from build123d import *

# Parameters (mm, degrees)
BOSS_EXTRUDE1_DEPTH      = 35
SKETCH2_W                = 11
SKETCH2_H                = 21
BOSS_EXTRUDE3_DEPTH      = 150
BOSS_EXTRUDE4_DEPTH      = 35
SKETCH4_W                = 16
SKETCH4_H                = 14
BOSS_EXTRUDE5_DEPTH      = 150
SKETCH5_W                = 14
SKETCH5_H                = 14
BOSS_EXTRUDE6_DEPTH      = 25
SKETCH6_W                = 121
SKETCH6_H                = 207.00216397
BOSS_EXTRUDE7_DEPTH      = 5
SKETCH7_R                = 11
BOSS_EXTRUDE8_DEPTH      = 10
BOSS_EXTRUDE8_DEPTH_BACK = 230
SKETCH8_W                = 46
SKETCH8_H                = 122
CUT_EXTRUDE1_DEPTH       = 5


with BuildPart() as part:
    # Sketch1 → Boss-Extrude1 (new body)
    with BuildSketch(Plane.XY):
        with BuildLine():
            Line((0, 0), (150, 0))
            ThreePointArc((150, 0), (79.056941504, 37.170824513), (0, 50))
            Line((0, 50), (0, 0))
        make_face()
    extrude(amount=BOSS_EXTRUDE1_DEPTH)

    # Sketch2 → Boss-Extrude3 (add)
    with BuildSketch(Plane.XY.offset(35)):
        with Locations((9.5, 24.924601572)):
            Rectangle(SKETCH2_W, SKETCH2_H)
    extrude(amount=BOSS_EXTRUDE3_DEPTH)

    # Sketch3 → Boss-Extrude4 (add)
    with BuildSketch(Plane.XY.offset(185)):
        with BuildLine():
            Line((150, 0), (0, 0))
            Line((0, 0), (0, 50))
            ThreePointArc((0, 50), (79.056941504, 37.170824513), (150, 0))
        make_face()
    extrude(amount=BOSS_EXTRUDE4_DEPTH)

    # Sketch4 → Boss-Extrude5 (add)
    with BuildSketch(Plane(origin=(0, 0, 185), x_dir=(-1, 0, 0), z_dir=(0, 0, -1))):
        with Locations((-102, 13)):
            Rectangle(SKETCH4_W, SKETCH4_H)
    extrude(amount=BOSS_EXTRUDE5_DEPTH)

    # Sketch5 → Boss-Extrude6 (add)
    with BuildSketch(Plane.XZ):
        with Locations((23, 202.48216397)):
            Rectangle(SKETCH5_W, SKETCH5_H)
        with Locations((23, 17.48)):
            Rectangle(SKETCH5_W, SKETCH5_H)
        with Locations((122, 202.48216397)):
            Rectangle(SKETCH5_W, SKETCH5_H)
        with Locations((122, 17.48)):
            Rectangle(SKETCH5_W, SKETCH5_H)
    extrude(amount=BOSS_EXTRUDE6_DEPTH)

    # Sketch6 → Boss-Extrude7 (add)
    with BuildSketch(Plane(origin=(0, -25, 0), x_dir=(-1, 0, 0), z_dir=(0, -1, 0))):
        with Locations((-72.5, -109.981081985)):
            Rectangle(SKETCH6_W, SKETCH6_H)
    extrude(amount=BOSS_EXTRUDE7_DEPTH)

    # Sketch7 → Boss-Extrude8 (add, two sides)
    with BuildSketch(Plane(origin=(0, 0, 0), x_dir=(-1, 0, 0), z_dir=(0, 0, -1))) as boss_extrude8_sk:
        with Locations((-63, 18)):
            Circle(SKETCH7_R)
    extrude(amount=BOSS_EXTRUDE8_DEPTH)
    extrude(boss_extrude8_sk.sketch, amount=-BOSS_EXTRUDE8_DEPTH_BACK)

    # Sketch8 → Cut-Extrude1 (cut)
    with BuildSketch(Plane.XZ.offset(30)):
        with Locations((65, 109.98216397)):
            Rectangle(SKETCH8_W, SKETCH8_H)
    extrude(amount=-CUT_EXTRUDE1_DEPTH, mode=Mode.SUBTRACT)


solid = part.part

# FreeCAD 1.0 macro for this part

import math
import FreeCAD as App
import Part
import Sketcher
from FreeCAD import Vector
Q = App.Units.Quantity

doc = App.newDocument("Part")
body = doc.addObject("PartDesign::Body", "Body")

# Sketch on XY plane
sketch1 = body.newObject("Sketcher::SketchObject", "Sketch")
sketch1.AttachmentSupport = (doc.getObject("XY_Plane"), [""])
sketch1.MapMode = "FlatFace"
sketch1.addGeometry([
    Part.LineSegment(Vector(0, 0, 0), Vector(150, 0, 0)),
    Part.ArcOfCircle(Part.Circle(Vector(0, -200, 0), Vector(0, 0, 1), 250), math.radians(53), math.radians(90)),
    Part.LineSegment(Vector(0, 50, 0), Vector(0, 0, 0)),
], False)
sketch1.addConstraint([
    Sketcher.Constraint("Coincident", 0, 2, 1, 1),
    Sketcher.Constraint("Coincident", 1, 2, 2, 1),
    Sketcher.Constraint("Coincident", 2, 2, 0, 1),
    Sketcher.Constraint("Horizontal", 0),
    Sketcher.Constraint("Vertical", 2),
    Sketcher.Constraint("Coincident", 2, 2, -1, 1),
    Sketcher.Constraint("PointOnObject", 1, 3, -2),
    Sketcher.Constraint("Radius", 1, Q("250 mm")),
    Sketcher.Constraint("DistanceX", 0, 1, 0, 2, Q("150 mm")),
])
pad1 = body.newObject("PartDesign::Pad", "Pad")
pad1.Profile = sketch1
pad1.Length = 35

# Sketch on XY plane
sketch2 = body.newObject("Sketcher::SketchObject", "Sketch001")
sketch2.AttachmentSupport = (doc.getObject("XY_Plane"), [""])
sketch2.MapMode = "FlatFace"
sketch2.AttachmentOffset = App.Placement(Vector(0, 0, 35), App.Rotation())
sketch2.addGeometry([
    Part.LineSegment(Vector(4, 35, 0), Vector(4, 14, 0)),
    Part.LineSegment(Vector(4, 14, 0), Vector(15, 14, 0)),
    Part.LineSegment(Vector(15, 14, 0), Vector(15, 35, 0)),
    Part.LineSegment(Vector(15, 35, 0), Vector(4, 35, 0)),
], False)
sketch2.addConstraint([
    Sketcher.Constraint("Coincident", 0, 2, 1, 1),
    Sketcher.Constraint("Coincident", 1, 2, 2, 1),
    Sketcher.Constraint("Coincident", 2, 2, 3, 1),
    Sketcher.Constraint("Coincident", 3, 2, 0, 1),
    Sketcher.Constraint("Vertical", 0),
    Sketcher.Constraint("Horizontal", 1),
    Sketcher.Constraint("Vertical", 2),
    Sketcher.Constraint("Horizontal", 3),
    Sketcher.Constraint("DistanceX", 1, 1, 1, 2, Q("11 mm")),
    Sketcher.Constraint("DistanceY", 0, 2, 0, 1, Q("21 mm")),
    Sketcher.Constraint("DistanceX", -1, 1, 0, 2, Q("4 mm")),
    Sketcher.Constraint("DistanceY", -1, 1, 0, 2, Q("14.424602 mm")),
])
pad2 = body.newObject("PartDesign::Pad", "Pad001")
pad2.Profile = sketch2
pad2.Length = 150

# Sketch on XY plane
sketch3 = body.newObject("Sketcher::SketchObject", "Sketch002")
sketch3.AttachmentSupport = (doc.getObject("XY_Plane"), [""])
sketch3.MapMode = "FlatFace"
sketch3.AttachmentOffset = App.Placement(Vector(0, 0, 185), App.Rotation())
sketch3.addGeometry([
    Part.LineSegment(Vector(0, 0, 0), Vector(150, 0, 0)),
    Part.ArcOfCircle(Part.Circle(Vector(0, -200, 0), Vector(0, 0, 1), 250), math.radians(53), math.radians(90)),
    Part.LineSegment(Vector(0, 50, 0), Vector(0, 0, 0)),
], False)
sketch3.addConstraint([
    Sketcher.Constraint("Coincident", 0, 2, 1, 1),
    Sketcher.Constraint("Coincident", 1, 2, 2, 1),
    Sketcher.Constraint("Coincident", 2, 2, 0, 1),
    Sketcher.Constraint("Horizontal", 0),
    Sketcher.Constraint("Vertical", 2),
    Sketcher.Constraint("Coincident", 2, 2, -1, 1),
    Sketcher.Constraint("PointOnObject", 1, 3, -2),
    Sketcher.Constraint("Radius", 1, Q("250 mm")),
    Sketcher.Constraint("DistanceX", 0, 1, 0, 2, Q("150 mm")),
])
pad3 = body.newObject("PartDesign::Pad", "Pad002")
pad3.Profile = sketch3
pad3.Length = 35

# Sketch on XY plane
sketch4 = body.newObject("Sketcher::SketchObject", "Sketch003")
sketch4.AttachmentSupport = (doc.getObject("XY_Plane"), [""])
sketch4.MapMode = "FlatFace"
sketch4.AttachmentOffset = App.Placement(Vector(0, 0, 185), App.Rotation())
sketch4.addGeometry([
    Part.LineSegment(Vector(110, 20, 0), Vector(110, 6, 0)),
    Part.LineSegment(Vector(110, 6, 0), Vector(94, 6, 0)),
    Part.LineSegment(Vector(94, 6, 0), Vector(94, 20, 0)),
    Part.LineSegment(Vector(94, 20, 0), Vector(110, 20, 0)),
], False)
sketch4.addConstraint([
    Sketcher.Constraint("Coincident", 0, 2, 1, 1),
    Sketcher.Constraint("Coincident", 1, 2, 2, 1),
    Sketcher.Constraint("Coincident", 2, 2, 3, 1),
    Sketcher.Constraint("Coincident", 3, 2, 0, 1),
    Sketcher.Constraint("Vertical", 0),
    Sketcher.Constraint("Horizontal", 1),
    Sketcher.Constraint("Vertical", 2),
    Sketcher.Constraint("Horizontal", 3),
    Sketcher.Constraint("DistanceX", 1, 2, 1, 1, Q("16 mm")),
    Sketcher.Constraint("DistanceY", 0, 2, 0, 1, Q("14 mm")),
    Sketcher.Constraint("DistanceX", -1, 1, 0, 2, Q("110 mm")),
    Sketcher.Constraint("DistanceY", -1, 1, 0, 2, Q("6 mm")),
])
pad4 = body.newObject("PartDesign::Pad", "Pad003")
pad4.Profile = sketch4
pad4.Length = 150
pad4.Reversed = True

# Sketch on XZ plane
sketch5 = body.newObject("Sketcher::SketchObject", "Sketch004")
sketch5.AttachmentSupport = (doc.getObject("XZ_Plane"), [""])
sketch5.MapMode = "FlatFace"
sketch5.addGeometry([
    Part.LineSegment(Vector(16, 209, 0), Vector(16, 195, 0)),  # 0
    Part.LineSegment(Vector(16, 195, 0), Vector(30, 195, 0)),  # 1
    Part.LineSegment(Vector(30, 195, 0), Vector(30, 209, 0)),  # 2
    Part.LineSegment(Vector(30, 209, 0), Vector(16, 209, 0)),  # 3
    Part.LineSegment(Vector(16, 24, 0), Vector(16, 10, 0)),  # 4
    Part.LineSegment(Vector(16, 10, 0), Vector(30, 10, 0)),  # 5
    Part.LineSegment(Vector(30, 10, 0), Vector(30, 24, 0)),  # 6
    Part.LineSegment(Vector(30, 24, 0), Vector(16, 24, 0)),  # 7
    Part.LineSegment(Vector(115, 209, 0), Vector(115, 195, 0)),  # 8
    Part.LineSegment(Vector(115, 195, 0), Vector(129, 195, 0)),  # 9
    Part.LineSegment(Vector(129, 195, 0), Vector(129, 209, 0)),  # 10
    Part.LineSegment(Vector(129, 209, 0), Vector(115, 209, 0)),  # 11
    Part.LineSegment(Vector(115, 24, 0), Vector(115, 10, 0)),  # 12
    Part.LineSegment(Vector(115, 10, 0), Vector(129, 10, 0)),  # 13
    Part.LineSegment(Vector(129, 10, 0), Vector(129, 24, 0)),  # 14
    Part.LineSegment(Vector(129, 24, 0), Vector(115, 24, 0)),  # 15
], False)
sketch5.addConstraint([
    Sketcher.Constraint("Coincident", 0, 2, 1, 1),
    Sketcher.Constraint("Coincident", 1, 2, 2, 1),
    Sketcher.Constraint("Coincident", 2, 2, 3, 1),
    Sketcher.Constraint("Coincident", 3, 2, 0, 1),
    Sketcher.Constraint("Coincident", 4, 2, 5, 1),
    Sketcher.Constraint("Coincident", 5, 2, 6, 1),
    Sketcher.Constraint("Coincident", 6, 2, 7, 1),
    Sketcher.Constraint("Coincident", 7, 2, 4, 1),
    Sketcher.Constraint("Coincident", 8, 2, 9, 1),
    Sketcher.Constraint("Coincident", 9, 2, 10, 1),
    Sketcher.Constraint("Coincident", 10, 2, 11, 1),
    Sketcher.Constraint("Coincident", 11, 2, 8, 1),
    Sketcher.Constraint("Coincident", 12, 2, 13, 1),
    Sketcher.Constraint("Coincident", 13, 2, 14, 1),
    Sketcher.Constraint("Coincident", 14, 2, 15, 1),
    Sketcher.Constraint("Coincident", 15, 2, 12, 1),
    Sketcher.Constraint("Vertical", 0),
    Sketcher.Constraint("Horizontal", 1),
    Sketcher.Constraint("Vertical", 2),
    Sketcher.Constraint("Horizontal", 3),
    Sketcher.Constraint("Vertical", 4),
    Sketcher.Constraint("Horizontal", 5),
    Sketcher.Constraint("Vertical", 6),
    Sketcher.Constraint("Horizontal", 7),
    Sketcher.Constraint("Vertical", 8),
    Sketcher.Constraint("Horizontal", 9),
    Sketcher.Constraint("Vertical", 10),
    Sketcher.Constraint("Horizontal", 11),
    Sketcher.Constraint("Vertical", 12),
    Sketcher.Constraint("Horizontal", 13),
    Sketcher.Constraint("Vertical", 14),
    Sketcher.Constraint("Horizontal", 15),
    Sketcher.Constraint("Horizontal", 1, 2, 8, 2),
    Sketcher.Constraint("Horizontal", 3, 2, 10, 2),
    Sketcher.Constraint("Horizontal", 5, 2, 12, 2),
    Sketcher.Constraint("Horizontal", 7, 2, 14, 2),
    Sketcher.Constraint("Vertical", 3, 2, 4, 2),
    Sketcher.Constraint("Vertical", 2, 2, 5, 2),
    Sketcher.Constraint("Vertical", 11, 2, 12, 2),
    Sketcher.Constraint("Vertical", 10, 2, 13, 2),
    Sketcher.Constraint("Equal", 7, 9),
    Sketcher.Constraint("Equal", 15, 0),
    Sketcher.Constraint("Equal", 2, 4),
    Sketcher.Constraint("DistanceX", 1, 1, 1, 2, Q("14 mm")),
    Sketcher.Constraint("DistanceX", -1, 1, 0, 2, Q("16 mm")),
    Sketcher.Constraint("DistanceX", -1, 1, 8, 2, Q("115 mm")),
    Sketcher.Constraint("DistanceY", -1, 1, 4, 2, Q("10.48 mm")),
    Sketcher.Constraint("DistanceY", -1, 1, 0, 2, Q("195.482164 mm")),
])
pad5 = body.newObject("PartDesign::Pad", "Pad004")
pad5.Profile = sketch5
pad5.Length = 25

# Sketch on XZ plane
sketch6 = body.newObject("Sketcher::SketchObject", "Sketch005")
sketch6.AttachmentSupport = (doc.getObject("XZ_Plane"), [""])
sketch6.MapMode = "FlatFace"
sketch6.AttachmentOffset = App.Placement(Vector(0, 0, 25), App.Rotation())
sketch6.addGeometry([
    Part.LineSegment(Vector(133, 6, 0), Vector(133, 213, 0)),
    Part.LineSegment(Vector(133, 213, 0), Vector(12, 213, 0)),
    Part.LineSegment(Vector(12, 213, 0), Vector(12, 6, 0)),
    Part.LineSegment(Vector(12, 6, 0), Vector(133, 6, 0)),
], False)
sketch6.addConstraint([
    Sketcher.Constraint("Coincident", 0, 2, 1, 1),
    Sketcher.Constraint("Coincident", 1, 2, 2, 1),
    Sketcher.Constraint("Coincident", 2, 2, 3, 1),
    Sketcher.Constraint("Coincident", 3, 2, 0, 1),
    Sketcher.Constraint("Vertical", 0),
    Sketcher.Constraint("Horizontal", 1),
    Sketcher.Constraint("Vertical", 2),
    Sketcher.Constraint("Horizontal", 3),
    Sketcher.Constraint("DistanceX", 1, 2, 1, 1, Q("121 mm")),
    Sketcher.Constraint("DistanceX", -1, 1, 0, 2, Q("133 mm")),
    Sketcher.Constraint("DistanceY", -1, 1, 2, 2, Q("6.48 mm")),
    Sketcher.Constraint("DistanceY", 0, 1, 0, 2, Q("207.002164 mm")),
])
pad6 = body.newObject("PartDesign::Pad", "Pad005")
pad6.Profile = sketch6
pad6.Length = 5

# Sketch on XY plane
sketch7 = body.newObject("Sketcher::SketchObject", "Sketch006")
sketch7.AttachmentSupport = (doc.getObject("XY_Plane"), [""])
sketch7.MapMode = "FlatFace"
sketch7.addGeometry(Part.Circle(Vector(63, 18, 0), Vector(0, 0, 1), 11), False)
sketch7.addConstraint([
    Sketcher.Constraint("Diameter", 0, Q("22 mm")),
    Sketcher.Constraint("DistanceX", -1, 1, 0, 3, Q("63 mm")),
    Sketcher.Constraint("DistanceY", -1, 1, 0, 3, Q("18 mm")),
])
pad7 = body.newObject("PartDesign::Pad", "Pad006")
pad7.Profile = sketch7
pad7.Type = "TwoLengths"
pad7.Length = 10
pad7.Length2 = 230
pad7.Reversed = True

# Sketch on XZ plane
sketch8 = body.newObject("Sketcher::SketchObject", "Sketch007")
sketch8.AttachmentSupport = (doc.getObject("XZ_Plane"), [""])
sketch8.MapMode = "FlatFace"
sketch8.AttachmentOffset = App.Placement(Vector(0, 0, 30), App.Rotation())
sketch8.addGeometry([
    Part.LineSegment(Vector(42, 171, 0), Vector(42, 49, 0)),
    Part.LineSegment(Vector(42, 49, 0), Vector(88, 49, 0)),
    Part.LineSegment(Vector(88, 49, 0), Vector(88, 171, 0)),
    Part.LineSegment(Vector(88, 171, 0), Vector(42, 171, 0)),
], False)
sketch8.addConstraint([
    Sketcher.Constraint("Coincident", 0, 2, 1, 1),
    Sketcher.Constraint("Coincident", 1, 2, 2, 1),
    Sketcher.Constraint("Coincident", 2, 2, 3, 1),
    Sketcher.Constraint("Coincident", 3, 2, 0, 1),
    Sketcher.Constraint("Vertical", 0),
    Sketcher.Constraint("Horizontal", 1),
    Sketcher.Constraint("Vertical", 2),
    Sketcher.Constraint("Horizontal", 3),
    Sketcher.Constraint("DistanceX", 1, 1, 1, 2, Q("46 mm")),
    Sketcher.Constraint("DistanceY", 0, 2, 0, 1, Q("122 mm")),
    Sketcher.Constraint("DistanceX", -1, 1, 0, 2, Q("42 mm")),
    Sketcher.Constraint("DistanceY", -1, 1, 0, 2, Q("48.982164 mm")),
])
pocket1 = body.newObject("PartDesign::Pocket", "Pocket")
pocket1.Profile = sketch8
pocket1.Length = 5

doc.recompute()
